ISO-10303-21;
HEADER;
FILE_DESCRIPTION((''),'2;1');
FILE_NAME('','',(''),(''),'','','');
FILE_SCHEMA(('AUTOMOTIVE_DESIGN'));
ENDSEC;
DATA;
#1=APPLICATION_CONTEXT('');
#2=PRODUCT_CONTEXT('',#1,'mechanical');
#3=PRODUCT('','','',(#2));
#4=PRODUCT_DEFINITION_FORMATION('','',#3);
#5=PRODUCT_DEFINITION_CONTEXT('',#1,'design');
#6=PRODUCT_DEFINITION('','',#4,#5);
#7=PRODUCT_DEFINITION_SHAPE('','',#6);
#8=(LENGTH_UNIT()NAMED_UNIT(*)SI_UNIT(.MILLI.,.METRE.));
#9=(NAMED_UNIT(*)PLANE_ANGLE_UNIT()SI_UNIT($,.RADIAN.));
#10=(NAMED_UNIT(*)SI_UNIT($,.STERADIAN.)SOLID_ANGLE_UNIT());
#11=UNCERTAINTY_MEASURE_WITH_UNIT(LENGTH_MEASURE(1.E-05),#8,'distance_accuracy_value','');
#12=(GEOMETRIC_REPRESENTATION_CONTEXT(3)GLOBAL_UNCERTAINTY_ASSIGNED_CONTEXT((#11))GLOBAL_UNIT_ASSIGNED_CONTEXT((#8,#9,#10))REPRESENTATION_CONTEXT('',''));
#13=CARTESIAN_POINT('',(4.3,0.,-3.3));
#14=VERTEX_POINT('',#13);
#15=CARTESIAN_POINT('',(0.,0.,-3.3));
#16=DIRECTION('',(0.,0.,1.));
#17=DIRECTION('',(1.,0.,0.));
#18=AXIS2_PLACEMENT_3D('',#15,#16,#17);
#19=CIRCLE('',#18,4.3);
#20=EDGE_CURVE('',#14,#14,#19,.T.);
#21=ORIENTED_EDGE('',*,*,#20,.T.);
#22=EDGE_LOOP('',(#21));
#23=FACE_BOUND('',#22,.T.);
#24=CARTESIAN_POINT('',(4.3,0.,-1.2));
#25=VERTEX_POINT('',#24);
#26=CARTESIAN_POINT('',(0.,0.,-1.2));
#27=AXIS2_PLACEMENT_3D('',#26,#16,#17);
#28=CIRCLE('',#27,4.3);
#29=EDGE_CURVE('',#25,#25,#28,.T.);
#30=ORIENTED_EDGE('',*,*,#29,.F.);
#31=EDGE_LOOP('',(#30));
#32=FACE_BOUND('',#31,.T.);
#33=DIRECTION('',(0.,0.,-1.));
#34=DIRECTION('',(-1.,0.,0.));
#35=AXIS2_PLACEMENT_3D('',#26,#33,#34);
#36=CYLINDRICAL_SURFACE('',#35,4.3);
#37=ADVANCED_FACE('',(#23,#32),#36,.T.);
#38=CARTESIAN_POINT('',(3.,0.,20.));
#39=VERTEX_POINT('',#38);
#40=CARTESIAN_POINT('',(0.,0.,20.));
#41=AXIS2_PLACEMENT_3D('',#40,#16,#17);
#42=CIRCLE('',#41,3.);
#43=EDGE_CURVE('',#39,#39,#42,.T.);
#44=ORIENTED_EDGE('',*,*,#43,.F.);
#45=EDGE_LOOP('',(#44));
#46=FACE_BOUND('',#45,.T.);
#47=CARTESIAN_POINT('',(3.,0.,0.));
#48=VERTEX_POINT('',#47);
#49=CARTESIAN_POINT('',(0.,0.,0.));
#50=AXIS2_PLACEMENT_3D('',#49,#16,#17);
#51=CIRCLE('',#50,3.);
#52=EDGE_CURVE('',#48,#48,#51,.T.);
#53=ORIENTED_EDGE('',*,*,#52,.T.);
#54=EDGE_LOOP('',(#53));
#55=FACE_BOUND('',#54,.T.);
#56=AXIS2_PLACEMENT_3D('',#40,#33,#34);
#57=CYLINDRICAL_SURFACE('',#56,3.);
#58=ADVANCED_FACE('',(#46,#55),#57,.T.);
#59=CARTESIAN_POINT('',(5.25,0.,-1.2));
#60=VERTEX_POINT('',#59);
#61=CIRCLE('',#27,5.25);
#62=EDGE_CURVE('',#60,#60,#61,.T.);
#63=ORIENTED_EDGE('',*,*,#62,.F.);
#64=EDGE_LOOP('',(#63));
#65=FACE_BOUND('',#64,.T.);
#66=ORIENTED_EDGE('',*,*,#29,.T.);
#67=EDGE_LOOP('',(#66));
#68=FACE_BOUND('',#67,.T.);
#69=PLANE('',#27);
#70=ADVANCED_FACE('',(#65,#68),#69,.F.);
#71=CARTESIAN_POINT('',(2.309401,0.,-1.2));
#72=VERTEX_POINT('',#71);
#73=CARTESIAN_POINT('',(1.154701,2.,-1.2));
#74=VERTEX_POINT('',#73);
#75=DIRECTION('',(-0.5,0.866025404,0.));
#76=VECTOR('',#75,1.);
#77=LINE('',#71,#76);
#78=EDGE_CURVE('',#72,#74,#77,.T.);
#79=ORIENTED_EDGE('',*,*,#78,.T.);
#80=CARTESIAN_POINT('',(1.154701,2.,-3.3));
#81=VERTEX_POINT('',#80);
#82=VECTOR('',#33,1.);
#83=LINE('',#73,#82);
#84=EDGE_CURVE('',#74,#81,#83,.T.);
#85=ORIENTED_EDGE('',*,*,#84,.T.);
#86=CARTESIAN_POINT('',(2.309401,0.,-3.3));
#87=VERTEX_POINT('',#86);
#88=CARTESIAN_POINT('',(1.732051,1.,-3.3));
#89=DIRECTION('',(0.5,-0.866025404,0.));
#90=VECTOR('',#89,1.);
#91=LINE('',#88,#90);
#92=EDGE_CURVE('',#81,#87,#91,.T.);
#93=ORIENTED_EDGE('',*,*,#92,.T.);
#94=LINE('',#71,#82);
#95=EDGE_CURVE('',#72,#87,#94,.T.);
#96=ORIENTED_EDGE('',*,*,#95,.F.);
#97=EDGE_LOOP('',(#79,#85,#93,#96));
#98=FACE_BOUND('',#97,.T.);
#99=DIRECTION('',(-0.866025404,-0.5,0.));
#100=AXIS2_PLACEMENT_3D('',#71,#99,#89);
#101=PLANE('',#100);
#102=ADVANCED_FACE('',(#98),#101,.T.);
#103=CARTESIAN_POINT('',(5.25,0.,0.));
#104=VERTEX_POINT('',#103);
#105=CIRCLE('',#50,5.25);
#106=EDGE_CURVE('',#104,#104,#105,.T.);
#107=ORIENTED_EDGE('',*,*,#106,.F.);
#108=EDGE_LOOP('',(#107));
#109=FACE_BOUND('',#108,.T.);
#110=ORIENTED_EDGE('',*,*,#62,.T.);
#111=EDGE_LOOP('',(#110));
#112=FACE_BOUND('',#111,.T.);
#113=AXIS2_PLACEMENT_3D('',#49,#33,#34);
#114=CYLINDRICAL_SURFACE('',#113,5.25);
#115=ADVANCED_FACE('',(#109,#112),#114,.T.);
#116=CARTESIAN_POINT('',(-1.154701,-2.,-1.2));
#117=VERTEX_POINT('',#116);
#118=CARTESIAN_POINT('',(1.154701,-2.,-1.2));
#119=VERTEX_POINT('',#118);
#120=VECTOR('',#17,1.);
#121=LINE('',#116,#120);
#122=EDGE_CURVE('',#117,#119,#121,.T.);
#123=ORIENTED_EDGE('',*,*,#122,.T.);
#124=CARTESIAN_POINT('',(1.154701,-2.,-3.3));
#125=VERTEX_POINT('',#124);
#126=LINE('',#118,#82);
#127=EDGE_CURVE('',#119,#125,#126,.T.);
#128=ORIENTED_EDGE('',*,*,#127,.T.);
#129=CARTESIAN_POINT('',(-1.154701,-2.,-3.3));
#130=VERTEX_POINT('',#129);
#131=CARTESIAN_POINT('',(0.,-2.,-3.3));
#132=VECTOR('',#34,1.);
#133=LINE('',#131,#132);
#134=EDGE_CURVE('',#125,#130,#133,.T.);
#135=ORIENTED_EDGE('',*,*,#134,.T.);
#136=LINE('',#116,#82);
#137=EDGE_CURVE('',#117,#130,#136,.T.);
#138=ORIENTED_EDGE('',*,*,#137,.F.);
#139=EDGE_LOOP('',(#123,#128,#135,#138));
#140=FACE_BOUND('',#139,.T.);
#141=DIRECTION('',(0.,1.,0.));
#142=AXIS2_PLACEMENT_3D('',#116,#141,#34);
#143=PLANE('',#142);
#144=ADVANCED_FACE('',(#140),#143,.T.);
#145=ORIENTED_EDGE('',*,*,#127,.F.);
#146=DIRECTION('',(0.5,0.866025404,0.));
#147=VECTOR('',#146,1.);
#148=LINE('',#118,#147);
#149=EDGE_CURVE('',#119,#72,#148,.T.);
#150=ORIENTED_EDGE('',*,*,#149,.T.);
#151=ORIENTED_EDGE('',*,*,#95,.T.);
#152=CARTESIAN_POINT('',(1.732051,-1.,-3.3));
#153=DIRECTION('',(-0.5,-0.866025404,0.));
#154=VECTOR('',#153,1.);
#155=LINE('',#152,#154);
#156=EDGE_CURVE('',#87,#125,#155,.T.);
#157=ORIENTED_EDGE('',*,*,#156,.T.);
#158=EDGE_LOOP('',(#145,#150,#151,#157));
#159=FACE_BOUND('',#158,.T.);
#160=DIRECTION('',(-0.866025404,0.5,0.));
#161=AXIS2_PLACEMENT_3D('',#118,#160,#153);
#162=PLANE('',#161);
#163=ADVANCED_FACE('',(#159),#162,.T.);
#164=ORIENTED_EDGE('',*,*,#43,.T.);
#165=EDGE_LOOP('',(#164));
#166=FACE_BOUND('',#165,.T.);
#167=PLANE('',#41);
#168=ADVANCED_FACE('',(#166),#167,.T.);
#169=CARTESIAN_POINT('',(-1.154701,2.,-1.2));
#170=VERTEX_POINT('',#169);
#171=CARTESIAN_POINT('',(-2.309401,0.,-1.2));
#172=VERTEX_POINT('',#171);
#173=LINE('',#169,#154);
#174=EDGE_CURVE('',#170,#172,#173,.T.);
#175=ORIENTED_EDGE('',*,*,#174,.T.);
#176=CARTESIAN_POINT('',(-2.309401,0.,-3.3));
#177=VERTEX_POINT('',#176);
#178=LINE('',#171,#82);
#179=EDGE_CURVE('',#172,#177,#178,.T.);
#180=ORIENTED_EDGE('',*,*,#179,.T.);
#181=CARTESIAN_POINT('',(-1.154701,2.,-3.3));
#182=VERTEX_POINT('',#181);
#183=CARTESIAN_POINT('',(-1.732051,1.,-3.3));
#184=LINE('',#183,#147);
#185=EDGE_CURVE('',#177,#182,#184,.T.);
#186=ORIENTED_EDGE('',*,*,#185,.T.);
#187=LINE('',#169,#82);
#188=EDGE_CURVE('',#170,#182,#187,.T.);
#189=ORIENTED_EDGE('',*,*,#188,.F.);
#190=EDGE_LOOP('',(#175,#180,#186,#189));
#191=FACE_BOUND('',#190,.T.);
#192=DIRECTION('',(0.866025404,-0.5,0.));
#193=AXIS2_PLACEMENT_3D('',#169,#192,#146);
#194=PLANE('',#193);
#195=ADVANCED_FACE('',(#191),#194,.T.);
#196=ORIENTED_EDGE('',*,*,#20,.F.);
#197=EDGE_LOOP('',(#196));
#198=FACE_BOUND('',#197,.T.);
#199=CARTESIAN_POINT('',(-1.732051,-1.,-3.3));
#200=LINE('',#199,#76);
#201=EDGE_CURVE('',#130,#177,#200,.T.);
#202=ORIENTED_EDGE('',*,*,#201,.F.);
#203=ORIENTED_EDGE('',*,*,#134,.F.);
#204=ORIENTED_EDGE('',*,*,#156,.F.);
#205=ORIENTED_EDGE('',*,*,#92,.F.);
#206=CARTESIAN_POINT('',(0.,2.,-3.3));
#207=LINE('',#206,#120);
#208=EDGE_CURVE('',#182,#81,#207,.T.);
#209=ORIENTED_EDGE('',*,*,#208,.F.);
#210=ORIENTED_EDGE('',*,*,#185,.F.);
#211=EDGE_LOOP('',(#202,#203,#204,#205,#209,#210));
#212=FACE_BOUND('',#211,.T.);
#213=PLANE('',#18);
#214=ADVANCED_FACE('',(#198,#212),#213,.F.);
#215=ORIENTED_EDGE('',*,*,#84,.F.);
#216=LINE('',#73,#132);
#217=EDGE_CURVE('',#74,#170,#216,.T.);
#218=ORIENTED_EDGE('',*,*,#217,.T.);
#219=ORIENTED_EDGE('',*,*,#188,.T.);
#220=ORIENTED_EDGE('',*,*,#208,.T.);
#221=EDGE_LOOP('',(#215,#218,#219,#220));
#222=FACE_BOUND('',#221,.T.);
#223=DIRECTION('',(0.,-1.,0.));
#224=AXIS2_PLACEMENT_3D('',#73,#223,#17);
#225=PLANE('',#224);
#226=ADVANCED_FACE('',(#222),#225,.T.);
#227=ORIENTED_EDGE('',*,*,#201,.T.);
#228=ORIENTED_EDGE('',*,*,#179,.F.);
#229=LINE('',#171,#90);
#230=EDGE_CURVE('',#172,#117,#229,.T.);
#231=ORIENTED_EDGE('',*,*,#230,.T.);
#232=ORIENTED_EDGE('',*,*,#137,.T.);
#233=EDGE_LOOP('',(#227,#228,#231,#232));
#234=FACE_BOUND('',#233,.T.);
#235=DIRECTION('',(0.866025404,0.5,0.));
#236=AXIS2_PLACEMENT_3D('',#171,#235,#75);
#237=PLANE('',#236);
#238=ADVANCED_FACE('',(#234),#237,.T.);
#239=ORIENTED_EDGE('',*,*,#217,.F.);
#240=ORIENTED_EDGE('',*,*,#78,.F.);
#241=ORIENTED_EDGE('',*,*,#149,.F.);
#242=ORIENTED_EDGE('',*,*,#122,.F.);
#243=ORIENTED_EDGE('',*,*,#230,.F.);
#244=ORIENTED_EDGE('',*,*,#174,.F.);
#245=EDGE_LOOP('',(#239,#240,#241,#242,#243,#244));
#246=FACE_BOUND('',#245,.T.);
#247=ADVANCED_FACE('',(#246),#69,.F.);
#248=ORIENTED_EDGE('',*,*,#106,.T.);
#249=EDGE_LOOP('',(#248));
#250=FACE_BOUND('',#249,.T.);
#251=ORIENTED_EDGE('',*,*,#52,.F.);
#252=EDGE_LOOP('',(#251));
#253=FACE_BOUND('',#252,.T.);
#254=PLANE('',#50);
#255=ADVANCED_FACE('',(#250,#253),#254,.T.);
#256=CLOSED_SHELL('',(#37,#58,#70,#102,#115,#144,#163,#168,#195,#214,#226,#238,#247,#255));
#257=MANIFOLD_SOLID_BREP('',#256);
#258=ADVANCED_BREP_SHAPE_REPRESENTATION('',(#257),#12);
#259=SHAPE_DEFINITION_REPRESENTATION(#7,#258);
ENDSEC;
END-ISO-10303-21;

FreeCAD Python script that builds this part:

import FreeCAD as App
import Part
import Sketcher
Q = App.Units.Quantity


def add_polygon(sketch, points):
    """Adds a closed chain of lines whose ends are joined by coincident constraints."""
    first, n = sketch.GeometryCount, len(points)
    for a, b in zip(points, points[1:] + points[:1]):
        sketch.addGeometry(Part.LineSegment(App.Vector(*a, 0), App.Vector(*b, 0)), False)
    for i in range(n):
        sketch.addConstraint(Sketcher.Constraint("Coincident", first + i, 2, first + (i + 1) % n, 1))

doc = App.newDocument("Part")
body = doc.addObject("PartDesign::Body", "Body")

# Sketch on XY plane
sketch1 = doc.addObject("Sketcher::SketchObject", "Sketch")
body.addObject(sketch1)
sketch1.AttachmentSupport = (doc.XY_Plane, [""])
sketch1.MapMode = "FlatFace"
sketch1.addGeometry(Part.Circle(App.Vector(0, 0, 0), App.Vector(0, 0, 1), 3), False)
sketch1.addConstraint([
    Sketcher.Constraint("Coincident", 0, 3, -1, 1),
    Sketcher.Constraint("Diameter", 0, Q("6 mm")),
])
pad1 = doc.addObject("PartDesign::Pad", "Pad")
body.addObject(pad1)
pad1.Profile = sketch1
pad1.Length = 20

# Sketch on XY plane
sketch2 = doc.addObject("Sketcher::SketchObject", "Sketch001")
body.addObject(sketch2)
sketch2.AttachmentSupport = (doc.XY_Plane, [""])
sketch2.MapMode = "FlatFace"
sketch2.AttachmentOffset = App.Placement(App.Vector(0, 0, -1.2), App.Rotation())
sketch2.addGeometry(Part.Circle(App.Vector(0, 0, 0), App.Vector(0, 0, 1), 5), False)
sketch2.addConstraint([
    Sketcher.Constraint("Coincident", 0, 3, -1, 1),
    Sketcher.Constraint("Diameter", 0, Q("10.5 mm")),
])
pad2 = doc.addObject("PartDesign::Pad", "Pad001")
body.addObject(pad2)
pad2.Profile = sketch2
pad2.Length = 1.2

# Sketch on XY plane
sketch3 = doc.addObject("Sketcher::SketchObject", "Sketch002")
body.addObject(sketch3)
sketch3.AttachmentSupport = (doc.XY_Plane, [""])
sketch3.MapMode = "FlatFace"
sketch3.AttachmentOffset = App.Placement(App.Vector(0, 0, -3.3), App.Rotation())
sketch3.addGeometry(Part.Circle(App.Vector(0, 0, 0), App.Vector(0, 0, 1), 4.3), False)
sketch3.addConstraint([
    Sketcher.Constraint("Coincident", 0, 3, -1, 1),
    Sketcher.Constraint("Diameter", 0, Q("8.6 mm")),
])
pad3 = doc.addObject("PartDesign::Pad", "Pad002")
body.addObject(pad3)
pad3.Profile = sketch3
pad3.Length = 2.1

# Sketch on XY plane
sketch4 = doc.addObject("Sketcher::SketchObject", "Sketch003")
body.addObject(sketch4)
sketch4.AttachmentSupport = (doc.XY_Plane, [""])
sketch4.MapMode = "FlatFace"
sketch4.AttachmentOffset = App.Placement(App.Vector(0, 0, -3.4), App.Rotation())
add_polygon(sketch4, [(2.3, 0), (1.2, 2), (-1.2, 2), (-2.3, 0), (-1.2, -2), (1.2, -2)])  # lines 0-5
sketch4.addConstraint([
    Sketcher.Constraint("Horizontal", 1),
    Sketcher.Constraint("Horizontal", 4),
    Sketcher.Constraint("Symmetric", 0, 2, 3, 2, -1, 1),
    Sketcher.Constraint("Symmetric", 2, 2, 5, 2, -1, 1),
    Sketcher.Constraint("PointOnObject", 2, 2, -1),
    Sketcher.Constraint("Parallel", 2, 5),
    Sketcher.Constraint("Vertical", 1, 2, 3, 2),
    Sketcher.Constraint("Angle", 0, Q("120 deg")),
    Sketcher.Constraint("DistanceY", -1, 1, 0, 2, Q("2 mm")),
    Sketcher.Constraint("DistanceX", 1, 2, 1, 1, Q("2.309401 mm")),
])
pocket1 = doc.addObject("PartDesign::Pocket", "Pocket")
body.addObject(pocket1)
pocket1.Profile = sketch4
pocket1.Length = 2.2
pocket1.Reversed = True

doc.recompute()
